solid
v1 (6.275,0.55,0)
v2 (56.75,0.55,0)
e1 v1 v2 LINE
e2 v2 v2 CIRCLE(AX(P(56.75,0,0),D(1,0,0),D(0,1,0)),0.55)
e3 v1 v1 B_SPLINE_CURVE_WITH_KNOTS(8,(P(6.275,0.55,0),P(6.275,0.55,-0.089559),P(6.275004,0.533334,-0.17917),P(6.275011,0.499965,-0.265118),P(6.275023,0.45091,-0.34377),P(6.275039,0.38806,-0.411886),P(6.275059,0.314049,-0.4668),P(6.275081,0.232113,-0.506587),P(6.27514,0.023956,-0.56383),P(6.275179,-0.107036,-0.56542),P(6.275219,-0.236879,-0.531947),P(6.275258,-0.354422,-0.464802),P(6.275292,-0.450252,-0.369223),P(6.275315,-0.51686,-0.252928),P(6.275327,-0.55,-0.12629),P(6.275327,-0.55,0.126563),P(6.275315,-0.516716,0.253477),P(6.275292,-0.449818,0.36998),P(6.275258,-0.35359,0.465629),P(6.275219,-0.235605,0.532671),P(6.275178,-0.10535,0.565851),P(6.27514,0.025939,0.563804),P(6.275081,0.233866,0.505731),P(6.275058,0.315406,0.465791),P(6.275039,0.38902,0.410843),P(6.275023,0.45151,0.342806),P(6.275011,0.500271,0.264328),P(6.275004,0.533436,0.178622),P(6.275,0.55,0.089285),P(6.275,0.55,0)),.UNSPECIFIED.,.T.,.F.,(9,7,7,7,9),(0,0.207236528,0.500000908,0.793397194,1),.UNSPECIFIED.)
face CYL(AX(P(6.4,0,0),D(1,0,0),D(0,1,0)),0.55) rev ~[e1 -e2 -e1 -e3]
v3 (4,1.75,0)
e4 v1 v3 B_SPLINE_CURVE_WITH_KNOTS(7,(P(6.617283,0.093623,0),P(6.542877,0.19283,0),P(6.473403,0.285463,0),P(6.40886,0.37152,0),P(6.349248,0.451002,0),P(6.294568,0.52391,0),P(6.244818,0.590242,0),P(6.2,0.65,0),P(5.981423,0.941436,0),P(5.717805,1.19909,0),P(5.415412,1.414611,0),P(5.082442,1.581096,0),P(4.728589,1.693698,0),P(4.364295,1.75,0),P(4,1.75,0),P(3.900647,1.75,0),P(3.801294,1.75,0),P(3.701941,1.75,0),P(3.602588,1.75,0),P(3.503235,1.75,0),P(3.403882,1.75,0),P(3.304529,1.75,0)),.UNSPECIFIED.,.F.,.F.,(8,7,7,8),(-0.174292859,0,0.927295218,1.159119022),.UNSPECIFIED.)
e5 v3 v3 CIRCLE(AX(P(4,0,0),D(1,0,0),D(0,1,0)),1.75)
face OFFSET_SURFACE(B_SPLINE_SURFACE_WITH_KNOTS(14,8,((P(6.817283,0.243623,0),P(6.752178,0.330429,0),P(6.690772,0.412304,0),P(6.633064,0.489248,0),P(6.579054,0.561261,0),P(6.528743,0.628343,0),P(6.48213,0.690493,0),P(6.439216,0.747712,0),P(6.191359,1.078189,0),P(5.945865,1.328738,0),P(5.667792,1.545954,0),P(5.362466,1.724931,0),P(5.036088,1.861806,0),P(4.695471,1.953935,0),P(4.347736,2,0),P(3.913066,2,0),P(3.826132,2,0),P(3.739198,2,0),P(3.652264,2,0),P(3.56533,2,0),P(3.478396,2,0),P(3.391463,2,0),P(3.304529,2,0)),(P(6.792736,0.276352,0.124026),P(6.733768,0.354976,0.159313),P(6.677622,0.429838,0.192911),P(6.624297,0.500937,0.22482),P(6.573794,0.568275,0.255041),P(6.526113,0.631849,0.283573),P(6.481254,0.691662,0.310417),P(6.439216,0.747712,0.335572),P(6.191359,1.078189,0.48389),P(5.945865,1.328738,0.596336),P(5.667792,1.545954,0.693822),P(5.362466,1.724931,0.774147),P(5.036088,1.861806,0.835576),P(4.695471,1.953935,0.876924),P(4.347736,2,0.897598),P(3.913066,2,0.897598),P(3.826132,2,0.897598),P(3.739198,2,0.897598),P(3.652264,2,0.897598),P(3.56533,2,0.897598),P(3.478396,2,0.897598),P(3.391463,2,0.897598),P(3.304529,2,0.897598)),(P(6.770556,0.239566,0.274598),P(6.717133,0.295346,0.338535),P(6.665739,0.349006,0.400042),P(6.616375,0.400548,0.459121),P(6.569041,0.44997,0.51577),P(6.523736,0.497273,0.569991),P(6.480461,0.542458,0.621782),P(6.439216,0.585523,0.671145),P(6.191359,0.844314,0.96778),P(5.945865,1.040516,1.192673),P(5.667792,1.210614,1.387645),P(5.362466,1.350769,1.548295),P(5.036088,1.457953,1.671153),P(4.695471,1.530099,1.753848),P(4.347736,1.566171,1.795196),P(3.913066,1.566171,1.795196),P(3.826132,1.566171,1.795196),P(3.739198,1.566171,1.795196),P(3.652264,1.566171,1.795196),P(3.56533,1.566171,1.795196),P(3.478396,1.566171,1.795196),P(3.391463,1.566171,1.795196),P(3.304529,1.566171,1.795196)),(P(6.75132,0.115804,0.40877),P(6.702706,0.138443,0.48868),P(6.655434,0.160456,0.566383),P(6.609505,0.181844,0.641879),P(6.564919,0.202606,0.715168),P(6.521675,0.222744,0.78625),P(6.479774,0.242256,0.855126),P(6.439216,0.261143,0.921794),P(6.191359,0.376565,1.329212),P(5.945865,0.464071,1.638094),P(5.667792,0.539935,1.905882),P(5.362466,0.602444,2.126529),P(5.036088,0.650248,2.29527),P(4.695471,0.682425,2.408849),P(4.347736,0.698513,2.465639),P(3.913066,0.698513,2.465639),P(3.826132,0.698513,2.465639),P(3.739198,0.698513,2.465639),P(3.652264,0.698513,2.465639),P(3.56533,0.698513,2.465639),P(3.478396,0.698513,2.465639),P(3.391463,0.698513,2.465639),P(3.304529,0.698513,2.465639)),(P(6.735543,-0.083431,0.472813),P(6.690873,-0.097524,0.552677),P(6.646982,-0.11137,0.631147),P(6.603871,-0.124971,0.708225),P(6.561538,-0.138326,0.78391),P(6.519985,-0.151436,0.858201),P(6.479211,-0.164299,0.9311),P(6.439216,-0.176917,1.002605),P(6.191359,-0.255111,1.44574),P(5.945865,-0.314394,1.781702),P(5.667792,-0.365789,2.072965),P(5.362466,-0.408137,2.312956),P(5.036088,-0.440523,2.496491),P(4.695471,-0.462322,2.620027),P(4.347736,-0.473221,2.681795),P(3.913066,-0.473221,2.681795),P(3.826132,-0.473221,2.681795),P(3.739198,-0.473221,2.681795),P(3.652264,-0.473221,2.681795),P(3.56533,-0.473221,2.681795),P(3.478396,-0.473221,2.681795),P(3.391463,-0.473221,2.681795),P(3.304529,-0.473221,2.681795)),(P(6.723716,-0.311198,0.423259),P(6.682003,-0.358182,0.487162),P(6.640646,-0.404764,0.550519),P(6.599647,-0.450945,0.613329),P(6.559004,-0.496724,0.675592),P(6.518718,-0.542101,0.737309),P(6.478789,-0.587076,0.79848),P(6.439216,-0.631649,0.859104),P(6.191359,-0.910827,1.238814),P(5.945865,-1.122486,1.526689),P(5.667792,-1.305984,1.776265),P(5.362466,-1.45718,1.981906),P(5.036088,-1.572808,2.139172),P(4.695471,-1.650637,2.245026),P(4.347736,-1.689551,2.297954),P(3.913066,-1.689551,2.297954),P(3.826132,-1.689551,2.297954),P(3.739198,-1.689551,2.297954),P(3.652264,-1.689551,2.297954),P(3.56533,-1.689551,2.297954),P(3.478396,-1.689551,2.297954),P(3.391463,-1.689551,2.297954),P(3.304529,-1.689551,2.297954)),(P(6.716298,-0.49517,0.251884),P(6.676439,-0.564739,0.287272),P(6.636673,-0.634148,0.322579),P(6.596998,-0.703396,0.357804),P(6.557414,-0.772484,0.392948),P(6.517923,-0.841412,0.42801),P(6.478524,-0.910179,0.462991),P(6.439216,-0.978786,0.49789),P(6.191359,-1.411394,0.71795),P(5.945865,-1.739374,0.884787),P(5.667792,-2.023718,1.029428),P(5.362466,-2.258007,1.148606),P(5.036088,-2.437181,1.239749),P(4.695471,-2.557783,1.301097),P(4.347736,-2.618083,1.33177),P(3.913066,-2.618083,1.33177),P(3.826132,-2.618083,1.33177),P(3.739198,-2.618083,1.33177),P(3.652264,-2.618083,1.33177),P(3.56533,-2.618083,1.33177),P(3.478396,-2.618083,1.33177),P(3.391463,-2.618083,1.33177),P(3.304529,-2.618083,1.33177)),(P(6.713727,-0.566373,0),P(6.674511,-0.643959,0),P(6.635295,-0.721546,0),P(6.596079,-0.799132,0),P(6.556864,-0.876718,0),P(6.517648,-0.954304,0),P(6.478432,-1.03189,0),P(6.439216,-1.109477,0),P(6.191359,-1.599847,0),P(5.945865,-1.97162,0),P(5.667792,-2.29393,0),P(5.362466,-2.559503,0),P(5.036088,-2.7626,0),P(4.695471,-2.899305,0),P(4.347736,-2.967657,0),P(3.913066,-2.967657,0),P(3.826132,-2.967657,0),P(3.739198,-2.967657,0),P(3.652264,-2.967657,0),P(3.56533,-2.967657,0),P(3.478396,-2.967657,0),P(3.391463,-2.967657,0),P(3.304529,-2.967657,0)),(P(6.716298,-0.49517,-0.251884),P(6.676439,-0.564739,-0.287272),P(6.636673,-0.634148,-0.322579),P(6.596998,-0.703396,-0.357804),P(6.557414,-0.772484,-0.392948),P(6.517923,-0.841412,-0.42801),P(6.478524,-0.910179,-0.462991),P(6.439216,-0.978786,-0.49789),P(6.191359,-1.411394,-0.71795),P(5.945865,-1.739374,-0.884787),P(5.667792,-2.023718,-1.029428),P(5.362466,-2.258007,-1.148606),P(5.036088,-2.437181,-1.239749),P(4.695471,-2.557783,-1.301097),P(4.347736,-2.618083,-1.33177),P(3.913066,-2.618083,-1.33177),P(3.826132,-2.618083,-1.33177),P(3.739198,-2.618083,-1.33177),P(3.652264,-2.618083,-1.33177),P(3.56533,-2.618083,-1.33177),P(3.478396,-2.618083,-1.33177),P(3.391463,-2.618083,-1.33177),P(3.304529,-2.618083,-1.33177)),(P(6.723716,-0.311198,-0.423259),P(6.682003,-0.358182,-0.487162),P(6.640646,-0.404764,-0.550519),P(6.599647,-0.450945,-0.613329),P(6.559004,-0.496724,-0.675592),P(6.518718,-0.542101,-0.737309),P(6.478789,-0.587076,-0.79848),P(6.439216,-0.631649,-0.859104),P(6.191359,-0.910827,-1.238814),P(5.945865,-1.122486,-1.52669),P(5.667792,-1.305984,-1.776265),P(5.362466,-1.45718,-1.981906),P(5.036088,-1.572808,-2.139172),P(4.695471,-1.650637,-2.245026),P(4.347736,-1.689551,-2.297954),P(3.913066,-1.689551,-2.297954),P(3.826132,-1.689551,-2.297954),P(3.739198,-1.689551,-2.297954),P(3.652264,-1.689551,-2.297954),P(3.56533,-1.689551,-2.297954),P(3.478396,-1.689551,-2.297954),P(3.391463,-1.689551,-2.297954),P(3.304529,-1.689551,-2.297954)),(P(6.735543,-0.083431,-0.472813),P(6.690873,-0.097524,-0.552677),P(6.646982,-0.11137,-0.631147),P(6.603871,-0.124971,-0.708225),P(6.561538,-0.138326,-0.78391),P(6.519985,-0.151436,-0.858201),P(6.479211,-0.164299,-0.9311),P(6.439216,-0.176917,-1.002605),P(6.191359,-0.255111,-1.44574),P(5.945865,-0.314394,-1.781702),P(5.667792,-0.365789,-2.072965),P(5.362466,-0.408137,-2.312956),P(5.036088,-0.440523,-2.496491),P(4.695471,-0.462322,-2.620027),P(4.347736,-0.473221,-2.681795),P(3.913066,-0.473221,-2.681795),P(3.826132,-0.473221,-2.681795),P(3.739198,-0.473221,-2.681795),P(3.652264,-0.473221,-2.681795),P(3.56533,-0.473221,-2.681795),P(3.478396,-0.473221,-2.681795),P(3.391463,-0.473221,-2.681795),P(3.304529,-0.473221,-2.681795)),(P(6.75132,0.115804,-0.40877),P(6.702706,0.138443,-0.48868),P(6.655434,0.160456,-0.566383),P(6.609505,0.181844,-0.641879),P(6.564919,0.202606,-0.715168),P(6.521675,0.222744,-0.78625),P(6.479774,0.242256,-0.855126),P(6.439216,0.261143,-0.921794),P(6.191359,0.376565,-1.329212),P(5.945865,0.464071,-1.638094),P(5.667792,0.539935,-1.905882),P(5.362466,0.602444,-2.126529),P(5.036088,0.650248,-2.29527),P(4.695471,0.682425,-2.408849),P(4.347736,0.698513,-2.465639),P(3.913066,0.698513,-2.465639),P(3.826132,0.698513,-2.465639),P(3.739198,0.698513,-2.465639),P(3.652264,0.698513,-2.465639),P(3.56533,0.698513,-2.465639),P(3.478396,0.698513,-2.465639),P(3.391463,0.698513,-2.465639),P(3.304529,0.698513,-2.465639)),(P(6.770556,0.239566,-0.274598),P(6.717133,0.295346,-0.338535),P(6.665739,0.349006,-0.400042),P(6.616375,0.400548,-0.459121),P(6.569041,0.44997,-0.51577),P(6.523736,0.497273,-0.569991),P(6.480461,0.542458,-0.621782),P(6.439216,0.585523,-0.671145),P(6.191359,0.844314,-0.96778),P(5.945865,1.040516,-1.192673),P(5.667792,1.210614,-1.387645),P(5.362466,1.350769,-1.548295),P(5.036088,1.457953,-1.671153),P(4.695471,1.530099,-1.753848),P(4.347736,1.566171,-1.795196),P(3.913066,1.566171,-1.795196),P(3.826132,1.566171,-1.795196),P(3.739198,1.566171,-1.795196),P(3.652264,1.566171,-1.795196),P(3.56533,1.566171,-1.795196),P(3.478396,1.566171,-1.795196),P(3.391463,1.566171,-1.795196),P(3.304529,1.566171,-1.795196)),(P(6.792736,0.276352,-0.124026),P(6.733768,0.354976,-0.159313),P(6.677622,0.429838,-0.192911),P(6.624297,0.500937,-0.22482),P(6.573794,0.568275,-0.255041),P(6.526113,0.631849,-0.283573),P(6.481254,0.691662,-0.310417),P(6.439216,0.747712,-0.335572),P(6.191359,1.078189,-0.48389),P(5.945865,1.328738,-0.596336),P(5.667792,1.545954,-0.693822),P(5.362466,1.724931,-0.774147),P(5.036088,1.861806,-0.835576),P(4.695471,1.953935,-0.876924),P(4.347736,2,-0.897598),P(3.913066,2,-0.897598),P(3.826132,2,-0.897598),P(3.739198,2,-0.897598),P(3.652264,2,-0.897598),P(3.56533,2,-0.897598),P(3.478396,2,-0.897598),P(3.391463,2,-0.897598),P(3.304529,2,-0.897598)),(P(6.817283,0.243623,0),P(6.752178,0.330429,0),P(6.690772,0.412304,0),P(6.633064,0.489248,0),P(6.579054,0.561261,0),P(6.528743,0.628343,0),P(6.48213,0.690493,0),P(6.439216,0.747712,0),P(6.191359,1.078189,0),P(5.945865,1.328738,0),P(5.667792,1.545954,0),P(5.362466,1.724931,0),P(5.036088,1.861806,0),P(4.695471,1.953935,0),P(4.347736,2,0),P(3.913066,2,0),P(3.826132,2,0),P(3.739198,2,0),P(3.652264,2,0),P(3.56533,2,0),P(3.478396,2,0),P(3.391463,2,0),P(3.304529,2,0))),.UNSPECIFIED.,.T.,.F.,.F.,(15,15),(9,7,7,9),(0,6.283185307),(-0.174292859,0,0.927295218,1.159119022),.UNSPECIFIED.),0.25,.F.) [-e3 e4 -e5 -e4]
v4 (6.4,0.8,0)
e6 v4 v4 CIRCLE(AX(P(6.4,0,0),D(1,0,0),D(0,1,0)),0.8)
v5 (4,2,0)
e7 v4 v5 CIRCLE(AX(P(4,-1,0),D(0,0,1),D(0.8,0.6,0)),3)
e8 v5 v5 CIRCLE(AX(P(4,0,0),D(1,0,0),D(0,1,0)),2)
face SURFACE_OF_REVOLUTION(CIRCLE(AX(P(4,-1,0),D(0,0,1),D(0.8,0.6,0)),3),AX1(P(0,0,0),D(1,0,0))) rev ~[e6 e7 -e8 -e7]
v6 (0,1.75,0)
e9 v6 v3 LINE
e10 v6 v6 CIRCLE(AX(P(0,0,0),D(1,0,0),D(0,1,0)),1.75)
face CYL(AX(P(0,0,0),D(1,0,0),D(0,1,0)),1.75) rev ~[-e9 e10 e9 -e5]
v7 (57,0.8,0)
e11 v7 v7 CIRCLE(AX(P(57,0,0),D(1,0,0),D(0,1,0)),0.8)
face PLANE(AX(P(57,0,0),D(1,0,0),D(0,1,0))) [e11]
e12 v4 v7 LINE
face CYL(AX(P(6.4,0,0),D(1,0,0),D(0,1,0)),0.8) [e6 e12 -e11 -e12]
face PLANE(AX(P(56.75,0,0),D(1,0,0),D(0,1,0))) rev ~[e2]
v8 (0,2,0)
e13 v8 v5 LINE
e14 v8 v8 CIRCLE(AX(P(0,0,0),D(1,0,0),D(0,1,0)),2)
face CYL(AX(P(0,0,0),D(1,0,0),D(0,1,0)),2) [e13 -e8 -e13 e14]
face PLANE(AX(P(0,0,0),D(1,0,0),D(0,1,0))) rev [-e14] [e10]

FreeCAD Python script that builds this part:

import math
import FreeCAD as App
import Part
import Sketcher


def faces_at(feature, points):
    """Names of the faces that lie closest to the given points."""
    faces = feature.Shape.Faces
    near = lambda p: min(range(len(faces)), key=lambda i: faces[i].distToShape(Part.Vertex(*p))[0])
    return sorted({f"Face{near(p) + 1}" for p in points})

doc = App.newDocument("Part")
body = doc.addObject("PartDesign::Body", "Body")

sketch1 = doc.addObject("Sketcher::SketchObject", "Sketch")
body.addObject(sketch1)
sketch1.AttachmentSupport = (doc.XY_Plane, [""])
sketch1.MapMode = "FlatFace"
sketch1.addGeometry([
    Part.LineSegment(App.Vector(0, 2, 0), App.Vector(0, 0, 0)),
    Part.LineSegment(App.Vector(0, 0, 0), App.Vector(57, 0, 0)),
    Part.LineSegment(App.Vector(57, 0, 0), App.Vector(57, 0.8, 0)),
    Part.LineSegment(App.Vector(57, 0.8, 0), App.Vector(6.4, 0.8, 0)),
    Part.ArcOfCircle(Part.Circle(App.Vector(4, -1, 0), App.Vector(0, 0, 1), 3), math.radians(37), math.radians(90)),
    Part.LineSegment(App.Vector(4, 2, 0), App.Vector(0, 2, 0)),
], False)
sketch1.addConstraint([
    Sketcher.Constraint("Coincident", 0, 2, 1, 1),
    Sketcher.Constraint("Coincident", 1, 2, 2, 1),
    Sketcher.Constraint("Coincident", 2, 2, 3, 1),
    Sketcher.Constraint("Coincident", 3, 2, 4, 1),
    Sketcher.Constraint("Tangent", 4, 2, 5, 1),
    Sketcher.Constraint("Coincident", 5, 2, 0, 1),
    Sketcher.Constraint("Vertical", 0),
    Sketcher.Constraint("Horizontal", 1),
    Sketcher.Constraint("Vertical", 2),
    Sketcher.Constraint("Horizontal", 3),
    Sketcher.Constraint("Horizontal", 5),
    Sketcher.Constraint("Coincident", 0, 2, -1, 1),
    Sketcher.Constraint("Radius", 4, 3.0),
    Sketcher.Constraint("DistanceX", 1, 1, 1, 2, 57.0),
    Sketcher.Constraint("DistanceX", 5, 2, 5, 1, 4.0),
    Sketcher.Constraint("DistanceY", 0, 2, 0, 1, 2.0),
    Sketcher.Constraint("DistanceX", 3, 2, 3, 1, 50.6),
])
revolution = doc.addObject("PartDesign::Revolution", "Revolution")
body.addObject(revolution)
revolution.Profile = sketch1
revolution.ReferenceAxis = (sketch1, ["H_Axis"])
revolution.Angle = 360
doc.recompute()

thickness = doc.addObject("PartDesign::Thickness", "Thickness")
body.addObject(thickness)
thickness.Base = (revolution, faces_at(revolution, [(0, 0.647, -0.16)]))
thickness.Value = 0.25
thickness.Reversed = True
thickness.Join = "Intersection"

doc.recompute()
